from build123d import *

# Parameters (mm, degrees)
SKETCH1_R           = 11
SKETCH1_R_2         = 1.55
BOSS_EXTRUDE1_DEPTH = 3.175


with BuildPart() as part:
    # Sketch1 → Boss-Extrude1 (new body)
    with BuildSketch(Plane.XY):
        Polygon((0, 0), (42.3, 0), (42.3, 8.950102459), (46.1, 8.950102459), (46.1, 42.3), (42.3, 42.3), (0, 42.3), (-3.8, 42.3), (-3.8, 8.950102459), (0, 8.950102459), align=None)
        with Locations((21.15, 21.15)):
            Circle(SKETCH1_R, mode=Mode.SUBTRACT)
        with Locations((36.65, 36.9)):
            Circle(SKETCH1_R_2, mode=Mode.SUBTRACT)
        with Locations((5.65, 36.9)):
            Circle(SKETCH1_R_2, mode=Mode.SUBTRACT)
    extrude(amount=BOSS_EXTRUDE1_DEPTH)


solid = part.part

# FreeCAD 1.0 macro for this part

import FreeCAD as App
import Part
import Sketcher

V = App.Vector
Q = App.Units.Quantity

doc = App.newDocument("Part")
body = doc.addObject("PartDesign::Body", "Body")

sketch1 = doc.addObject("Sketcher::SketchObject", "Sketch")
body.addObject(sketch1)
sketch1.AttachmentSupport = (doc.XY_Plane, [""])
sketch1.MapMode = "FlatFace"
sketch1.addGeometry([
    Part.LineSegment(V(0, 0, 0), V(42.3, 0, 0)),
    Part.LineSegment(V(42.3, 0, 0), V(42.3, 9, 0)),
    Part.LineSegment(V(42.3, 9, 0), V(46.1, 9, 0)),
    Part.LineSegment(V(46.1, 9, 0), V(46.1, 42.3, 0)),
    Part.LineSegment(V(46.1, 42.3, 0), V(-3.8, 42.3, 0)),
    Part.LineSegment(V(-3.8, 42.3, 0), V(-3.8, 9, 0)),
    Part.LineSegment(V(-3.8, 9, 0), V(0, 9, 0)),
    Part.LineSegment(V(0, 9, 0), V(0, 0, 0)),
    Part.Circle(V(21.1, 21.1, 0), V(0, 0, 1), 11),
    Part.Circle(V(5.7, 36.9, 0), V(0, 0, 1), 1.6),
    Part.Circle(V(36.6, 36.9, 0), V(0, 0, 1), 1.6),
], False)
sketch1.addConstraint([
    Sketcher.Constraint("Coincident", 0, 2, 1, 1),
    Sketcher.Constraint("Coincident", 1, 2, 2, 1),
    Sketcher.Constraint("Coincident", 2, 2, 3, 1),
    Sketcher.Constraint("Coincident", 3, 2, 4, 1),
    Sketcher.Constraint("Coincident", 4, 2, 5, 1),
    Sketcher.Constraint("Coincident", 5, 2, 6, 1),
    Sketcher.Constraint("Coincident", 6, 2, 7, 1),
    Sketcher.Constraint("Coincident", 7, 2, 0, 1),
    Sketcher.Constraint("Horizontal", 0),
    Sketcher.Constraint("Vertical", 1),
    Sketcher.Constraint("Horizontal", 2),
    Sketcher.Constraint("Vertical", 3),
    Sketcher.Constraint("Horizontal", 4),
    Sketcher.Constraint("Vertical", 5),
    Sketcher.Constraint("Horizontal", 6),
    Sketcher.Constraint("Vertical", 7),
    Sketcher.Constraint("Coincident", 7, 2, -1, 1),
    Sketcher.Constraint("Equal", 9, 10),
    Sketcher.Constraint("Horizontal", 9, 3, 10, 3),
    Sketcher.Constraint("Horizontal", 2, 2, 5, 2),
    Sketcher.Constraint("Equal", 2, 6),
    Sketcher.Constraint("Diameter", 8, Q("22 mm")),
    Sketcher.Constraint("Diameter", 9, Q("3.1 mm")),
    Sketcher.Constraint("DistanceX", 0, 1, 0, 2, Q("42.3 mm")),
    Sketcher.Constraint("DistanceX", 2, 1, 2, 2, Q("3.8 mm")),
    Sketcher.Constraint("DistanceX", 9, 3, 10, 3, Q("31 mm")),
    Sketcher.Constraint("DistanceY", -1, 1, 9, 3, Q("36.9 mm")),
    Sketcher.Constraint("DistanceY", -1, 1, 3, 2, Q("42.3 mm")),
    Sketcher.Constraint("DistanceX", 9, 3, 8, 3, Q("15.5 mm")),
    Sketcher.Constraint("DistanceX", -1, 1, 8, 3, Q("21.15 mm")),
    Sketcher.Constraint("DistanceY", -1, 1, 8, 3, Q("21.15 mm")),
    Sketcher.Constraint("DistanceY", 1, 1, 1, 2, Q("8.950102 mm")),
])
pad1 = doc.addObject("PartDesign::Pad", "Pad")
body.addObject(pad1)
pad1.Profile = sketch1
pad1.Length = 3.175

doc.recompute()
